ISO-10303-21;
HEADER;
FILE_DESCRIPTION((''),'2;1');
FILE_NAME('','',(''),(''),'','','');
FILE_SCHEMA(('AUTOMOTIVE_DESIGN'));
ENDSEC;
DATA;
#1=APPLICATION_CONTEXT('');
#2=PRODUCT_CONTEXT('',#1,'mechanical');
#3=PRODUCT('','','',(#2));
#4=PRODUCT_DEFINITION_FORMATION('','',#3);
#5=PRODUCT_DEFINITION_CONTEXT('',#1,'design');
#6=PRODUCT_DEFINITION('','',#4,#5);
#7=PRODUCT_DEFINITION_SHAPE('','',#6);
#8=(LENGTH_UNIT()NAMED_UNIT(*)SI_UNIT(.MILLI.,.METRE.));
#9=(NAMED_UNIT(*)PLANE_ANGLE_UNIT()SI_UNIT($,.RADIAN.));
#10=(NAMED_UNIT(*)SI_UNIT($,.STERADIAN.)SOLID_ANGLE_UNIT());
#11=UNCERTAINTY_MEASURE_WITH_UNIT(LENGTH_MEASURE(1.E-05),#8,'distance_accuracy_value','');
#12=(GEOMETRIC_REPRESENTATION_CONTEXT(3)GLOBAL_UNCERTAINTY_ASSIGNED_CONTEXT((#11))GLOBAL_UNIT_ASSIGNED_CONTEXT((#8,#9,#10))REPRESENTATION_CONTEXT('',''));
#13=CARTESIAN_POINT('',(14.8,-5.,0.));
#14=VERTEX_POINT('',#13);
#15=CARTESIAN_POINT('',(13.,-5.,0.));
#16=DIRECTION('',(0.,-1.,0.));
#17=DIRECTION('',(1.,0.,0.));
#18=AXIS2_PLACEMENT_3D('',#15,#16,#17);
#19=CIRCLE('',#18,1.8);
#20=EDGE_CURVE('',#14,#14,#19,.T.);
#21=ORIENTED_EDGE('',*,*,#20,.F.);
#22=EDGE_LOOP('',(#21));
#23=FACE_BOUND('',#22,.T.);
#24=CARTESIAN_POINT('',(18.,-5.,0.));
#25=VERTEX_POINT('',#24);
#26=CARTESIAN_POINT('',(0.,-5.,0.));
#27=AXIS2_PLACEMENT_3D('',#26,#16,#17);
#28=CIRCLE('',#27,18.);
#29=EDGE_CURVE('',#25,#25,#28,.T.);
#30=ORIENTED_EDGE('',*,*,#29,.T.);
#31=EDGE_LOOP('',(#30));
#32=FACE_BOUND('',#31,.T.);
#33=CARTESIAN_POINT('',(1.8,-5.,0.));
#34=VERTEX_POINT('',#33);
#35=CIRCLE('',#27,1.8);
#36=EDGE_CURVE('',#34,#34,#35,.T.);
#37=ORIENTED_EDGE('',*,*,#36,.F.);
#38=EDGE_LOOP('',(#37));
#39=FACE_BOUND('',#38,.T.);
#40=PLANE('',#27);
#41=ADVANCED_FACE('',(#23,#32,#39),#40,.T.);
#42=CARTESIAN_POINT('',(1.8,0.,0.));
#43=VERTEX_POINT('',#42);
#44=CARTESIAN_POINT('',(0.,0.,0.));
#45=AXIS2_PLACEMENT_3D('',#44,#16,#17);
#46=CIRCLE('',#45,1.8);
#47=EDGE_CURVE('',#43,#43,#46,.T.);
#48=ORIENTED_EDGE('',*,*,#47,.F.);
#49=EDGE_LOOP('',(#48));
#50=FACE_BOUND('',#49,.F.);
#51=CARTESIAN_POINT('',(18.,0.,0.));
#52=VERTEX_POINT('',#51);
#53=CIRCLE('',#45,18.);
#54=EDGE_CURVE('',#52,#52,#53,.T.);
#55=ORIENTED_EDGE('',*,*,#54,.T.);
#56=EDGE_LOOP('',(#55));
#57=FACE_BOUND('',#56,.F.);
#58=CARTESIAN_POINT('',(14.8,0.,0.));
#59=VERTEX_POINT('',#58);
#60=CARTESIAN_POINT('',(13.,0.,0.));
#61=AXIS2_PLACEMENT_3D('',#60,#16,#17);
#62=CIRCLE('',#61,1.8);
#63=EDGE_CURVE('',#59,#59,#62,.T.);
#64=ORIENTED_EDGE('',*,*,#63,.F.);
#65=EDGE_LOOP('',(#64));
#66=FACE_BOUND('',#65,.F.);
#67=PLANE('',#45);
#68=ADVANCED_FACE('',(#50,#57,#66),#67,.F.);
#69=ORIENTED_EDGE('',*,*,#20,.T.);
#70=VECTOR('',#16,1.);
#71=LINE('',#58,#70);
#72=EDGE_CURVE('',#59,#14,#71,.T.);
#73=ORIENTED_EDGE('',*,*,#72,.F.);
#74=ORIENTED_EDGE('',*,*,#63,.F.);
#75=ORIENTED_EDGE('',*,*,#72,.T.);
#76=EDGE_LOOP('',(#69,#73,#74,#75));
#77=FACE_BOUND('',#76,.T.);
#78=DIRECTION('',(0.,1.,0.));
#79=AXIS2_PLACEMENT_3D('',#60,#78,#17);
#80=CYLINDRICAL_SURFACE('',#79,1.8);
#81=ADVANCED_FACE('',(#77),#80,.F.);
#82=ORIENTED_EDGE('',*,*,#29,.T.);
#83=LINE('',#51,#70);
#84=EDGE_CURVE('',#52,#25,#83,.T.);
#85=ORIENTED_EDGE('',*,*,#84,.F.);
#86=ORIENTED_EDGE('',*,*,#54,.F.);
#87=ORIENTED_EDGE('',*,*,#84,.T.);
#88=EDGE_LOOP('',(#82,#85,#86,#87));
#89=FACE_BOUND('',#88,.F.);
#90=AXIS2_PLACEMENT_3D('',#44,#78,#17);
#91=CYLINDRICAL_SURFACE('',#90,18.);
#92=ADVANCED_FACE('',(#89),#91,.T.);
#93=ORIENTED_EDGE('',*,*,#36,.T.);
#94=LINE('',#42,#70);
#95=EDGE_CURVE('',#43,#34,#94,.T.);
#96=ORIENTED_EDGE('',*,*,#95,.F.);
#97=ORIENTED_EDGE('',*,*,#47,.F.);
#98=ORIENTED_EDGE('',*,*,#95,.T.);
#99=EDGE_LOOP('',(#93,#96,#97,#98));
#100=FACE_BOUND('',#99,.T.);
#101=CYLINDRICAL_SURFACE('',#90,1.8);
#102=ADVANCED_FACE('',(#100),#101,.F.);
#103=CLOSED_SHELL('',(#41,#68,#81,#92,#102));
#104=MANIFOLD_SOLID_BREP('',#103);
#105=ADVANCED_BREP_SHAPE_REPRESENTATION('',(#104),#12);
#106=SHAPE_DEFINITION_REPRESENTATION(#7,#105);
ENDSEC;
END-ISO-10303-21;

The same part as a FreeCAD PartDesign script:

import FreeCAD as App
import Part
import Sketcher
from FreeCAD import Vector
Q = App.Units.Quantity

doc = App.newDocument("Part")
body = doc.addObject("PartDesign::Body", "Body")

sketch1 = body.newObject("Sketcher::SketchObject", "Sketch")
sketch1.AttachmentSupport = (doc.getObject("XZ_Plane"), [""])
sketch1.MapMode = "FlatFace"
sketch1.addGeometry([
    Part.Circle(Vector(0, 0, 0), Vector(0, 0, 1), 18),
    Part.Circle(Vector(0, 0, 0), Vector(0, 0, 1), 1.8),
    Part.Circle(Vector(13, 0, 0), Vector(0, 0, 1), 1.8),
], False)
sketch1.addConstraint([
    Sketcher.Constraint("Coincident", 0, 3, -1, 1),
    Sketcher.Constraint("Coincident", 1, 3, -1, 1),
    Sketcher.Constraint("Equal", 1, 2),
    Sketcher.Constraint("PointOnObject", 2, 3, -1),
    Sketcher.Constraint("Diameter", 0, Q("36 mm")),
    Sketcher.Constraint("Diameter", 1, Q("3.6 mm")),
    Sketcher.Constraint("DistanceX", -1, 1, 2, 3, Q("13 mm")),
])
pad1 = body.newObject("PartDesign::Pad", "Pad")
pad1.Profile = sketch1
pad1.Length = 5

doc.recompute()
